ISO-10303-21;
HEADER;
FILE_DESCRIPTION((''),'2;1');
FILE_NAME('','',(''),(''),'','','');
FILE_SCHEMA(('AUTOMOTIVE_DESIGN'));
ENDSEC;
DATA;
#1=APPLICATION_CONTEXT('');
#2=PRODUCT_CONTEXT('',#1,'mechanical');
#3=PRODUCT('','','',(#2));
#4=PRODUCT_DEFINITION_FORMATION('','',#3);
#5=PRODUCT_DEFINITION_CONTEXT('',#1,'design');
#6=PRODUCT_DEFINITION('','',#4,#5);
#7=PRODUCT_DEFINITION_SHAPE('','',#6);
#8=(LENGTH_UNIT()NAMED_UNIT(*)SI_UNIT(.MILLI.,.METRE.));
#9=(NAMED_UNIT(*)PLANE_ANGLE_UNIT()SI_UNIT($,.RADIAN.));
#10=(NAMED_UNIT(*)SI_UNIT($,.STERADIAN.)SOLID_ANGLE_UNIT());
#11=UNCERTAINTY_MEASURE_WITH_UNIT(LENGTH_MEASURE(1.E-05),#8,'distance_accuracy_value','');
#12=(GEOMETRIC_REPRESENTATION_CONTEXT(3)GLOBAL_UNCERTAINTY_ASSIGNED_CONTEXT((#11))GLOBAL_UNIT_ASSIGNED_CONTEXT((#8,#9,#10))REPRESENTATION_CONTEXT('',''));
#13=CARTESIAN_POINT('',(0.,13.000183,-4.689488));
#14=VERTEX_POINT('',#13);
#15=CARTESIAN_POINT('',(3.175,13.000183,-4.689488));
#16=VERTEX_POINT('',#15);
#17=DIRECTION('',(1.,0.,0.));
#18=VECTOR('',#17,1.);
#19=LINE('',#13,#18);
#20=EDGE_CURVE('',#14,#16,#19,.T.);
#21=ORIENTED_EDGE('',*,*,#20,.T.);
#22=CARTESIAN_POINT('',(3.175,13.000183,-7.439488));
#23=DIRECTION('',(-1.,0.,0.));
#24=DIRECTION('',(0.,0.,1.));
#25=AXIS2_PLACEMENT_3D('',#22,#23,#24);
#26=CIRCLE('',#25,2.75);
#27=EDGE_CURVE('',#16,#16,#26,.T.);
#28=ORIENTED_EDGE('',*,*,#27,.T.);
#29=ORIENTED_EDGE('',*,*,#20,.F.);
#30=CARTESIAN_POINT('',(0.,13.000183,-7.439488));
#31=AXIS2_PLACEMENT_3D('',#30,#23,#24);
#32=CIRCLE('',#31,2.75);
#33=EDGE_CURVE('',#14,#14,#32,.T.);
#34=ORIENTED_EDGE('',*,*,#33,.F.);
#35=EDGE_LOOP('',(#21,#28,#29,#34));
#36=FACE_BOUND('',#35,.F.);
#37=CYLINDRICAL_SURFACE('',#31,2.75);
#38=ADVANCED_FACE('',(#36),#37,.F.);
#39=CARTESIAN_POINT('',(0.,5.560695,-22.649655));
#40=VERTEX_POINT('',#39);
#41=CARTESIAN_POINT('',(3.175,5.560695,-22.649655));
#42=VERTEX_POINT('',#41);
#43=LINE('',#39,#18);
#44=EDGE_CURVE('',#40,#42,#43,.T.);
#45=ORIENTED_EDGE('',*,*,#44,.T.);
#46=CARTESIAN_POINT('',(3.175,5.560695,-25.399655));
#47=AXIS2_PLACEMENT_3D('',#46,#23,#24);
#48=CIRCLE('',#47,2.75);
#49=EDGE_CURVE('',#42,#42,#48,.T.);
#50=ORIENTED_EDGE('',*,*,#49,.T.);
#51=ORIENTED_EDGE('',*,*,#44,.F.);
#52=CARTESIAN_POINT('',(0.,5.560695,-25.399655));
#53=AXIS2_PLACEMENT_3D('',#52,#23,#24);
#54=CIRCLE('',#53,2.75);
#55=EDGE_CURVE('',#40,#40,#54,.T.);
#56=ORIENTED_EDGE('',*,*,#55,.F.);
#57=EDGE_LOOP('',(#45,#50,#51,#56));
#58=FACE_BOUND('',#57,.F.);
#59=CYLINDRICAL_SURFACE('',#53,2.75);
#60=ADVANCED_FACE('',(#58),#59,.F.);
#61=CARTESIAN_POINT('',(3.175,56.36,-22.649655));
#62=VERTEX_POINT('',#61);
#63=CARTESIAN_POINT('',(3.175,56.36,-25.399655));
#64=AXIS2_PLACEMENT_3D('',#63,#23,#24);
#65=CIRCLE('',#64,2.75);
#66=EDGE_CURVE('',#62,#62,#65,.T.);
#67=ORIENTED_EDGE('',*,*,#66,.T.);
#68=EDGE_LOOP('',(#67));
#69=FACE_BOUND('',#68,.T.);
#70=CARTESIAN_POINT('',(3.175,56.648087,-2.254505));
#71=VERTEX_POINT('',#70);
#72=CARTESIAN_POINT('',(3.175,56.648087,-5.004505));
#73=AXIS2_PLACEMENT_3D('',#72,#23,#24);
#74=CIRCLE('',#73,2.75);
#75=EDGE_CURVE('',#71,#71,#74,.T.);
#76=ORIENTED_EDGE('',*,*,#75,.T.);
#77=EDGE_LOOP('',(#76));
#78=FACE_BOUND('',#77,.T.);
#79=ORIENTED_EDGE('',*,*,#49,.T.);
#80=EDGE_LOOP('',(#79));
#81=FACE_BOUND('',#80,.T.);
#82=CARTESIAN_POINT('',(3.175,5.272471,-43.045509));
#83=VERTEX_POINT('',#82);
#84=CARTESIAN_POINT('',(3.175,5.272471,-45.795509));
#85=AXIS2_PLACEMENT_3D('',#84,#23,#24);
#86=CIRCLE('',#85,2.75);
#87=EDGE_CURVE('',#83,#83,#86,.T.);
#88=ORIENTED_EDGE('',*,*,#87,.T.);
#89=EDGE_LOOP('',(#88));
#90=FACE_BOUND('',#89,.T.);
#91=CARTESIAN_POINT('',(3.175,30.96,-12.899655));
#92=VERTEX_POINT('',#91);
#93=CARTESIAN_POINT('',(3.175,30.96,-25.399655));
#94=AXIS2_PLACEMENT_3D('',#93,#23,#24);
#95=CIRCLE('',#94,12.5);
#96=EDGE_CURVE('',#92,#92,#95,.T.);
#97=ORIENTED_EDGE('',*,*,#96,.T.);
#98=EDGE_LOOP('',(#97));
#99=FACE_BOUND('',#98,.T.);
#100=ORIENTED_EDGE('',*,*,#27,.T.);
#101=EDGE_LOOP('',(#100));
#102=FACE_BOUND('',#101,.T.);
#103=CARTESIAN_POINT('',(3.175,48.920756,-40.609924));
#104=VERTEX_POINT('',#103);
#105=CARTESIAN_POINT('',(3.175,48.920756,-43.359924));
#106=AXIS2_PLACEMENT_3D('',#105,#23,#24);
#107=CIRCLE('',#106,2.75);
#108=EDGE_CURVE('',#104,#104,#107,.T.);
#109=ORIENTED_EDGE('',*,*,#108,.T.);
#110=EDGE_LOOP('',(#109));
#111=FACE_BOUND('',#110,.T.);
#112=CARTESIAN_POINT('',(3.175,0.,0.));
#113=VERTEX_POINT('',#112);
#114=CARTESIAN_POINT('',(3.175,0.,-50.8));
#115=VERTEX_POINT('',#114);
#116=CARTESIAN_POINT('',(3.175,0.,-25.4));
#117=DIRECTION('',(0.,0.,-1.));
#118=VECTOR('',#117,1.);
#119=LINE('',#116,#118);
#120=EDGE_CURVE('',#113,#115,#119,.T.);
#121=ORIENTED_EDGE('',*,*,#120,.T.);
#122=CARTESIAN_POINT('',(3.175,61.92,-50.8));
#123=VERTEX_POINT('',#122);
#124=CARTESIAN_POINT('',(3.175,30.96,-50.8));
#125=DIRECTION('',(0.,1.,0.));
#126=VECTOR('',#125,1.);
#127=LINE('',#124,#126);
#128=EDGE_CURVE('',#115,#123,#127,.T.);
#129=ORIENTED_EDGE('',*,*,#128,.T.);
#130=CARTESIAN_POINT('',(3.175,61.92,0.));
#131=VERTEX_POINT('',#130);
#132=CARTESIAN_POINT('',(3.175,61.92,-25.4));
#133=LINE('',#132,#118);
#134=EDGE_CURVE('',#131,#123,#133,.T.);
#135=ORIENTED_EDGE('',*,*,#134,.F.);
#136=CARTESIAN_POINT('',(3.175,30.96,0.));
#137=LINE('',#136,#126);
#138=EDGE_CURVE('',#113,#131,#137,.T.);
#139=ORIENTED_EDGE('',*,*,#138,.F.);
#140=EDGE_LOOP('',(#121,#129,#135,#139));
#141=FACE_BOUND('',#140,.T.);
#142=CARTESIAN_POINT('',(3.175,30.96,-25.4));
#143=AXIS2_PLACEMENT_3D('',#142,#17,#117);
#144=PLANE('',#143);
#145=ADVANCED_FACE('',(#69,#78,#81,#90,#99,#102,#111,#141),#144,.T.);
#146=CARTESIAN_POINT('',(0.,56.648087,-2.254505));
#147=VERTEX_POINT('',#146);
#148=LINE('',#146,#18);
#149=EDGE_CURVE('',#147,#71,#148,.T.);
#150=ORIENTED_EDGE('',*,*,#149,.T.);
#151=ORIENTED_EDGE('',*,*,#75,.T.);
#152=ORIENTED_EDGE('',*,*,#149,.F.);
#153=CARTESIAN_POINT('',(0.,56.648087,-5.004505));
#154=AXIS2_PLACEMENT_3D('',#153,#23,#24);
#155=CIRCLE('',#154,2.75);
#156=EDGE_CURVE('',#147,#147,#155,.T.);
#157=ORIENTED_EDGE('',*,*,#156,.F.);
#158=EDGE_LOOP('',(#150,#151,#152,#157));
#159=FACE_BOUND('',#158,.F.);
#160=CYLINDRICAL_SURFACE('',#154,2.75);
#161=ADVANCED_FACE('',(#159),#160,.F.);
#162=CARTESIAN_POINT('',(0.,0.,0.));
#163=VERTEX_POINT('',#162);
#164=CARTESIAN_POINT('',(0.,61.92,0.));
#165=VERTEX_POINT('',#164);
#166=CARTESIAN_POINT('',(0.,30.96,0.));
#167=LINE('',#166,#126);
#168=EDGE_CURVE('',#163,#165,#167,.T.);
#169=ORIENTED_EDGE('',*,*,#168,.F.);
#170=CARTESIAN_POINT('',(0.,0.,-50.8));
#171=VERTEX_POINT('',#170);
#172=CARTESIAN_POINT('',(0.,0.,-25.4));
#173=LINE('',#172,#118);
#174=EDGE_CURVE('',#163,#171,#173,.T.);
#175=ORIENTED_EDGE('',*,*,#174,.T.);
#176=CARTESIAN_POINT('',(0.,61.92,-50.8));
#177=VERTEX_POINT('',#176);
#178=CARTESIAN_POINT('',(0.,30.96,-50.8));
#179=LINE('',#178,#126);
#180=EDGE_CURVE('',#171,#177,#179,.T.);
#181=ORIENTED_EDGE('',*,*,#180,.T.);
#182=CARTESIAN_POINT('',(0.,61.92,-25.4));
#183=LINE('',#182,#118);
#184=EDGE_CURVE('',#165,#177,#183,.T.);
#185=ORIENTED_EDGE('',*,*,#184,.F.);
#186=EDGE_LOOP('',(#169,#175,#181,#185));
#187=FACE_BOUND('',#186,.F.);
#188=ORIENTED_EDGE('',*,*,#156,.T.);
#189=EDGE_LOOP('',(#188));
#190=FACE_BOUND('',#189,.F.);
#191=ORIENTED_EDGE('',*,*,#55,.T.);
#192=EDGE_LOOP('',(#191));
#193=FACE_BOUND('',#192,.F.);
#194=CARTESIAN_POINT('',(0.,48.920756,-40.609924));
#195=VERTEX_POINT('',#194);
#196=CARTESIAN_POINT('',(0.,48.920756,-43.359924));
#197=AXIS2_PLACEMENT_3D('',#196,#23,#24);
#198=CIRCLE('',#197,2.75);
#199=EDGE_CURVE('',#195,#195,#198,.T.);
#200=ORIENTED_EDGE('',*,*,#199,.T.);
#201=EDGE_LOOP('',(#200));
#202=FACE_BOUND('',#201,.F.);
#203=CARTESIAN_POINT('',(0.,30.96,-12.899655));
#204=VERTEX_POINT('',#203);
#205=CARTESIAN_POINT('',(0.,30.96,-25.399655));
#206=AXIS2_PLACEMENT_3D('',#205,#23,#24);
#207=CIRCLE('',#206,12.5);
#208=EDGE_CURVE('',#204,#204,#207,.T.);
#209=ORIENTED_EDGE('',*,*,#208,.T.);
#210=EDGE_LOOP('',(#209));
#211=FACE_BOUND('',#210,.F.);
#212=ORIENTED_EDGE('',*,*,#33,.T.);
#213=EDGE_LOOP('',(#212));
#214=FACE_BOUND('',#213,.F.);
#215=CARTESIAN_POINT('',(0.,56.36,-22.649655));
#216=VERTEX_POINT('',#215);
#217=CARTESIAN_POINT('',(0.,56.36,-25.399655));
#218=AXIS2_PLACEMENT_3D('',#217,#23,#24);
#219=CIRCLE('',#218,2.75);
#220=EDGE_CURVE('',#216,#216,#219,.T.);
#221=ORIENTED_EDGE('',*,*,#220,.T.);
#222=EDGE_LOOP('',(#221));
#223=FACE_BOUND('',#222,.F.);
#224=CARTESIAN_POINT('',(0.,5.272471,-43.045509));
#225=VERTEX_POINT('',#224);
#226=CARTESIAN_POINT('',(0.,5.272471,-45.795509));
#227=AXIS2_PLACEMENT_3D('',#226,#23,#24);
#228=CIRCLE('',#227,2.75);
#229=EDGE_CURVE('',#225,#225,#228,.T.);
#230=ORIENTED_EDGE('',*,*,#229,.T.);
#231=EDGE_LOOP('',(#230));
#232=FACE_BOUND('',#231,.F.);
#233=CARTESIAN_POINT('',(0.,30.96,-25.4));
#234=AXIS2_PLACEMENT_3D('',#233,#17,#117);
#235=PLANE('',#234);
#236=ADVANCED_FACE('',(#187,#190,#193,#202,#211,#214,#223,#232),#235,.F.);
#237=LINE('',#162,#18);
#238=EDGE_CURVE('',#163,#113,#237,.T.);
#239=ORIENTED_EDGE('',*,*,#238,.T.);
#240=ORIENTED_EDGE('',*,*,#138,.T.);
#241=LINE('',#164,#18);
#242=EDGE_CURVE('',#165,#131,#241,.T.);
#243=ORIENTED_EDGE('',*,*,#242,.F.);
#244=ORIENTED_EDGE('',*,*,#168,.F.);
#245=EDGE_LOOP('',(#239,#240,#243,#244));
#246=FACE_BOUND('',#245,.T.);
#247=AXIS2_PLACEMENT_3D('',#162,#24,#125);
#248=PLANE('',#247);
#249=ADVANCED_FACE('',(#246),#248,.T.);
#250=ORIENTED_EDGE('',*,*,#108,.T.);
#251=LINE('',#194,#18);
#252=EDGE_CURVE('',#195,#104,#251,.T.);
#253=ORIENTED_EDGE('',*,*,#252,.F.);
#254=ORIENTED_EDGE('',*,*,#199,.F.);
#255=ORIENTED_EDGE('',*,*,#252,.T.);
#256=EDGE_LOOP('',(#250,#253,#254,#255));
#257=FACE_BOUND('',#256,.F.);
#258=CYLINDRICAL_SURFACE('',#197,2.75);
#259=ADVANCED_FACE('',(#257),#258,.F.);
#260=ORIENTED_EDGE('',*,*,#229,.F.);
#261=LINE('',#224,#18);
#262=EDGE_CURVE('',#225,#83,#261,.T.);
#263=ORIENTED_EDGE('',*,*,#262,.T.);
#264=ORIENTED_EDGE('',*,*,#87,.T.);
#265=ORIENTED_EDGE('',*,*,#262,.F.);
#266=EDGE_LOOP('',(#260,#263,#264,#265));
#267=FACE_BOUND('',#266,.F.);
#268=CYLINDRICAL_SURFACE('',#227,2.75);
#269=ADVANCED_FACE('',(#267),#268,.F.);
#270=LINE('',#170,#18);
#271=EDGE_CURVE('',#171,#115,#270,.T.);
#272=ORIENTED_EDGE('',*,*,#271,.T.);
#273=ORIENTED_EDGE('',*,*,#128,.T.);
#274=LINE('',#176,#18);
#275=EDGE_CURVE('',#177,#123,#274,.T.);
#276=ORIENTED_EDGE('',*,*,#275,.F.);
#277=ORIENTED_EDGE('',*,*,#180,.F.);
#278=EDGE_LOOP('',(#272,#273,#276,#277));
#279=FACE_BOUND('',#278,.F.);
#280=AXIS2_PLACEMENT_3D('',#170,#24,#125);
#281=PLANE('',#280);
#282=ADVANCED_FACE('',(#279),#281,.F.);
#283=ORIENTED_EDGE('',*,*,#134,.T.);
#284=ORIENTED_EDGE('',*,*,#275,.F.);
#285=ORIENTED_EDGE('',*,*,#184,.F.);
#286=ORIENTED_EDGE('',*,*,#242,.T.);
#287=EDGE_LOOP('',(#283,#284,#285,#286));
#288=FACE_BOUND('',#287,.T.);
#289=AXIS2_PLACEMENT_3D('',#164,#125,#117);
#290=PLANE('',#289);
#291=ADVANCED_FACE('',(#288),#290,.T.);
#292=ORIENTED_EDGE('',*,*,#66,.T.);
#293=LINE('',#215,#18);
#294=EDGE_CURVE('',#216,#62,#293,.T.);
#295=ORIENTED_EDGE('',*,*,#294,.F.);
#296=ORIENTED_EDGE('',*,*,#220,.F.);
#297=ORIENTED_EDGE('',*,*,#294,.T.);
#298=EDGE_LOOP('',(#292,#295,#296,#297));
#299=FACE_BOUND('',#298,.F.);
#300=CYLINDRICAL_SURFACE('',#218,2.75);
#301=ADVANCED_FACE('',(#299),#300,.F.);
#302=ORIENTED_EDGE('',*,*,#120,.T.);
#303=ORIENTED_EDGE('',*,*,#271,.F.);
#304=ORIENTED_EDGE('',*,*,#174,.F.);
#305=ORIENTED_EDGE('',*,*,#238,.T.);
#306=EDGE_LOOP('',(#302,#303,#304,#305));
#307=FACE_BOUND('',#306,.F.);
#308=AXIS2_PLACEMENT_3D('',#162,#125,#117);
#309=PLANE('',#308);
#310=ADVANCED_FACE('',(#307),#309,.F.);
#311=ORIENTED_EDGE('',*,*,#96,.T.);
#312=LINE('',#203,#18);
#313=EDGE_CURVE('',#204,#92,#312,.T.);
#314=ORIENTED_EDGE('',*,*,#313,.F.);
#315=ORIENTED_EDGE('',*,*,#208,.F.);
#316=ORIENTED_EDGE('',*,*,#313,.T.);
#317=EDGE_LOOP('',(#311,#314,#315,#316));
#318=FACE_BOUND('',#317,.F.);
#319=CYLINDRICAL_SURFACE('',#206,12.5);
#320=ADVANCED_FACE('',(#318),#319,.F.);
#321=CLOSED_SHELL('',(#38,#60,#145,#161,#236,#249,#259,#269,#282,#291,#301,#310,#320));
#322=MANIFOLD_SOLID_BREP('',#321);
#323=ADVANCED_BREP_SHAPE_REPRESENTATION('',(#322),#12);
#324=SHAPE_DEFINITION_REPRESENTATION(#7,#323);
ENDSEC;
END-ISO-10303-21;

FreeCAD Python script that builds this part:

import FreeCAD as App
import Part
import Sketcher

V = App.Vector


def add_polygon(sketch, points):
    """Adds a closed chain of lines whose ends are joined by coincident constraints."""
    first, n = sketch.GeometryCount, len(points)
    for a, b in zip(points, points[1:] + points[:1]):
        sketch.addGeometry(Part.LineSegment(App.Vector(*a, 0), App.Vector(*b, 0)), False)
    for i in range(n):
        sketch.addConstraint(Sketcher.Constraint("Coincident", first + i, 2, first + (i + 1) % n, 1))

doc = App.newDocument("Part")
body = doc.addObject("PartDesign::Body", "Body")

sketch1 = body.newObject("Sketcher::SketchObject", "Sketch")
sketch1.AttachmentSupport = (doc.getObject("YZ_Plane"), [""])
sketch1.MapMode = "FlatFace"
add_polygon(sketch1, [(62, 0), (0, 0), (0, -51), (62, -51)])
sketch1.addConstraint([
    Sketcher.Constraint("Horizontal", 0),
    Sketcher.Constraint("Vertical", 1),
    Sketcher.Constraint("Horizontal", 2),
    Sketcher.Constraint("Vertical", 3),
    Sketcher.Constraint("Coincident", 0, 2, -1, 1),
    Sketcher.Constraint("DistanceY", 1, 2, 1, 1, 50.8),
    Sketcher.Constraint("DistanceX", 0, 2, 0, 1, 61.92),
])
pad1 = body.newObject("PartDesign::Pad", "Pad")
pad1.Profile = sketch1
pad1.Length = 3.175

sketch2 = body.newObject("Sketcher::SketchObject", "Sketch001")
sketch2.AttachmentSupport = (doc.getObject("YZ_Plane"), [""])
sketch2.MapMode = "FlatFace"
sketch2.addGeometry([
    Part.Circle(V(31, -25.4, 0), V(0, 0, 1), 12.5),
    Part.Circle(V(48.9, -43.4, 0), V(0, 0, 1), 2.8),
    Part.Circle(V(56.4, -25.4, 0), V(0, 0, 1), 2.8),
    Part.Circle(V(56.6, -5, 0), V(0, 0, 1), 2.8),
    Part.Circle(V(5.6, -25.4, 0), V(0, 0, 1), 2.8),
    Part.Circle(V(5.3, -45.8, 0), V(0, 0, 1), 2.8),
    Part.Circle(V(13, -7.4, 0), V(0, 0, 1), 2.8),
], False)
sketch2.addConstraint([
    Sketcher.Constraint("Equal", 1, 2),
    Sketcher.Constraint("Equal", 2, 3),
    Sketcher.Constraint("Equal", 3, 4),
    Sketcher.Constraint("Equal", 4, 5),
    Sketcher.Constraint("Equal", 5, 6),
    Sketcher.Constraint("Horizontal", 0, 3, 2, 3),
    Sketcher.Constraint("Horizontal", 2, 3, 4, 3),
    Sketcher.Constraint("Diameter", 0, 25.0),
    Sketcher.Constraint("Diameter", 1, 5.5),
    Sketcher.Constraint("DistanceX", 0, 3, 2, 3, 25.4),
    Sketcher.Constraint("DistanceX", -1, 1, 0, 3, 30.96),
    Sketcher.Constraint("DistanceX", -1, 1, 5, 3, 5.272471),
    Sketcher.Constraint("DistanceY", 5, 3, -1, 1, 45.795509),
    Sketcher.Constraint("DistanceY", 1, 3, 0, 3, 17.960269),
    Sketcher.Constraint("DistanceY", 2, 3, 3, 3, 20.395151),
    Sketcher.Constraint("DistanceX", 1, 3, 3, 3, 7.727331),
    Sketcher.Constraint("DistanceX", 4, 3, 1, 3, 43.360061),
    Sketcher.Constraint("DistanceX", 5, 3, 6, 3, 7.727712),
    Sketcher.Constraint("DistanceY", 5, 3, 6, 3, 38.356022),
    Sketcher.Constraint("DistanceY", 0, 3, -1, 1, 25.399655),
    Sketcher.Constraint("DistanceX", -1, 1, 1, 3, 48.920756),
])
pocket1 = body.newObject("PartDesign::Pocket", "Pocket")
pocket1.Profile = sketch2
pocket1.Type = "ThroughAll"
pocket1.Reversed = True

doc.recompute()
